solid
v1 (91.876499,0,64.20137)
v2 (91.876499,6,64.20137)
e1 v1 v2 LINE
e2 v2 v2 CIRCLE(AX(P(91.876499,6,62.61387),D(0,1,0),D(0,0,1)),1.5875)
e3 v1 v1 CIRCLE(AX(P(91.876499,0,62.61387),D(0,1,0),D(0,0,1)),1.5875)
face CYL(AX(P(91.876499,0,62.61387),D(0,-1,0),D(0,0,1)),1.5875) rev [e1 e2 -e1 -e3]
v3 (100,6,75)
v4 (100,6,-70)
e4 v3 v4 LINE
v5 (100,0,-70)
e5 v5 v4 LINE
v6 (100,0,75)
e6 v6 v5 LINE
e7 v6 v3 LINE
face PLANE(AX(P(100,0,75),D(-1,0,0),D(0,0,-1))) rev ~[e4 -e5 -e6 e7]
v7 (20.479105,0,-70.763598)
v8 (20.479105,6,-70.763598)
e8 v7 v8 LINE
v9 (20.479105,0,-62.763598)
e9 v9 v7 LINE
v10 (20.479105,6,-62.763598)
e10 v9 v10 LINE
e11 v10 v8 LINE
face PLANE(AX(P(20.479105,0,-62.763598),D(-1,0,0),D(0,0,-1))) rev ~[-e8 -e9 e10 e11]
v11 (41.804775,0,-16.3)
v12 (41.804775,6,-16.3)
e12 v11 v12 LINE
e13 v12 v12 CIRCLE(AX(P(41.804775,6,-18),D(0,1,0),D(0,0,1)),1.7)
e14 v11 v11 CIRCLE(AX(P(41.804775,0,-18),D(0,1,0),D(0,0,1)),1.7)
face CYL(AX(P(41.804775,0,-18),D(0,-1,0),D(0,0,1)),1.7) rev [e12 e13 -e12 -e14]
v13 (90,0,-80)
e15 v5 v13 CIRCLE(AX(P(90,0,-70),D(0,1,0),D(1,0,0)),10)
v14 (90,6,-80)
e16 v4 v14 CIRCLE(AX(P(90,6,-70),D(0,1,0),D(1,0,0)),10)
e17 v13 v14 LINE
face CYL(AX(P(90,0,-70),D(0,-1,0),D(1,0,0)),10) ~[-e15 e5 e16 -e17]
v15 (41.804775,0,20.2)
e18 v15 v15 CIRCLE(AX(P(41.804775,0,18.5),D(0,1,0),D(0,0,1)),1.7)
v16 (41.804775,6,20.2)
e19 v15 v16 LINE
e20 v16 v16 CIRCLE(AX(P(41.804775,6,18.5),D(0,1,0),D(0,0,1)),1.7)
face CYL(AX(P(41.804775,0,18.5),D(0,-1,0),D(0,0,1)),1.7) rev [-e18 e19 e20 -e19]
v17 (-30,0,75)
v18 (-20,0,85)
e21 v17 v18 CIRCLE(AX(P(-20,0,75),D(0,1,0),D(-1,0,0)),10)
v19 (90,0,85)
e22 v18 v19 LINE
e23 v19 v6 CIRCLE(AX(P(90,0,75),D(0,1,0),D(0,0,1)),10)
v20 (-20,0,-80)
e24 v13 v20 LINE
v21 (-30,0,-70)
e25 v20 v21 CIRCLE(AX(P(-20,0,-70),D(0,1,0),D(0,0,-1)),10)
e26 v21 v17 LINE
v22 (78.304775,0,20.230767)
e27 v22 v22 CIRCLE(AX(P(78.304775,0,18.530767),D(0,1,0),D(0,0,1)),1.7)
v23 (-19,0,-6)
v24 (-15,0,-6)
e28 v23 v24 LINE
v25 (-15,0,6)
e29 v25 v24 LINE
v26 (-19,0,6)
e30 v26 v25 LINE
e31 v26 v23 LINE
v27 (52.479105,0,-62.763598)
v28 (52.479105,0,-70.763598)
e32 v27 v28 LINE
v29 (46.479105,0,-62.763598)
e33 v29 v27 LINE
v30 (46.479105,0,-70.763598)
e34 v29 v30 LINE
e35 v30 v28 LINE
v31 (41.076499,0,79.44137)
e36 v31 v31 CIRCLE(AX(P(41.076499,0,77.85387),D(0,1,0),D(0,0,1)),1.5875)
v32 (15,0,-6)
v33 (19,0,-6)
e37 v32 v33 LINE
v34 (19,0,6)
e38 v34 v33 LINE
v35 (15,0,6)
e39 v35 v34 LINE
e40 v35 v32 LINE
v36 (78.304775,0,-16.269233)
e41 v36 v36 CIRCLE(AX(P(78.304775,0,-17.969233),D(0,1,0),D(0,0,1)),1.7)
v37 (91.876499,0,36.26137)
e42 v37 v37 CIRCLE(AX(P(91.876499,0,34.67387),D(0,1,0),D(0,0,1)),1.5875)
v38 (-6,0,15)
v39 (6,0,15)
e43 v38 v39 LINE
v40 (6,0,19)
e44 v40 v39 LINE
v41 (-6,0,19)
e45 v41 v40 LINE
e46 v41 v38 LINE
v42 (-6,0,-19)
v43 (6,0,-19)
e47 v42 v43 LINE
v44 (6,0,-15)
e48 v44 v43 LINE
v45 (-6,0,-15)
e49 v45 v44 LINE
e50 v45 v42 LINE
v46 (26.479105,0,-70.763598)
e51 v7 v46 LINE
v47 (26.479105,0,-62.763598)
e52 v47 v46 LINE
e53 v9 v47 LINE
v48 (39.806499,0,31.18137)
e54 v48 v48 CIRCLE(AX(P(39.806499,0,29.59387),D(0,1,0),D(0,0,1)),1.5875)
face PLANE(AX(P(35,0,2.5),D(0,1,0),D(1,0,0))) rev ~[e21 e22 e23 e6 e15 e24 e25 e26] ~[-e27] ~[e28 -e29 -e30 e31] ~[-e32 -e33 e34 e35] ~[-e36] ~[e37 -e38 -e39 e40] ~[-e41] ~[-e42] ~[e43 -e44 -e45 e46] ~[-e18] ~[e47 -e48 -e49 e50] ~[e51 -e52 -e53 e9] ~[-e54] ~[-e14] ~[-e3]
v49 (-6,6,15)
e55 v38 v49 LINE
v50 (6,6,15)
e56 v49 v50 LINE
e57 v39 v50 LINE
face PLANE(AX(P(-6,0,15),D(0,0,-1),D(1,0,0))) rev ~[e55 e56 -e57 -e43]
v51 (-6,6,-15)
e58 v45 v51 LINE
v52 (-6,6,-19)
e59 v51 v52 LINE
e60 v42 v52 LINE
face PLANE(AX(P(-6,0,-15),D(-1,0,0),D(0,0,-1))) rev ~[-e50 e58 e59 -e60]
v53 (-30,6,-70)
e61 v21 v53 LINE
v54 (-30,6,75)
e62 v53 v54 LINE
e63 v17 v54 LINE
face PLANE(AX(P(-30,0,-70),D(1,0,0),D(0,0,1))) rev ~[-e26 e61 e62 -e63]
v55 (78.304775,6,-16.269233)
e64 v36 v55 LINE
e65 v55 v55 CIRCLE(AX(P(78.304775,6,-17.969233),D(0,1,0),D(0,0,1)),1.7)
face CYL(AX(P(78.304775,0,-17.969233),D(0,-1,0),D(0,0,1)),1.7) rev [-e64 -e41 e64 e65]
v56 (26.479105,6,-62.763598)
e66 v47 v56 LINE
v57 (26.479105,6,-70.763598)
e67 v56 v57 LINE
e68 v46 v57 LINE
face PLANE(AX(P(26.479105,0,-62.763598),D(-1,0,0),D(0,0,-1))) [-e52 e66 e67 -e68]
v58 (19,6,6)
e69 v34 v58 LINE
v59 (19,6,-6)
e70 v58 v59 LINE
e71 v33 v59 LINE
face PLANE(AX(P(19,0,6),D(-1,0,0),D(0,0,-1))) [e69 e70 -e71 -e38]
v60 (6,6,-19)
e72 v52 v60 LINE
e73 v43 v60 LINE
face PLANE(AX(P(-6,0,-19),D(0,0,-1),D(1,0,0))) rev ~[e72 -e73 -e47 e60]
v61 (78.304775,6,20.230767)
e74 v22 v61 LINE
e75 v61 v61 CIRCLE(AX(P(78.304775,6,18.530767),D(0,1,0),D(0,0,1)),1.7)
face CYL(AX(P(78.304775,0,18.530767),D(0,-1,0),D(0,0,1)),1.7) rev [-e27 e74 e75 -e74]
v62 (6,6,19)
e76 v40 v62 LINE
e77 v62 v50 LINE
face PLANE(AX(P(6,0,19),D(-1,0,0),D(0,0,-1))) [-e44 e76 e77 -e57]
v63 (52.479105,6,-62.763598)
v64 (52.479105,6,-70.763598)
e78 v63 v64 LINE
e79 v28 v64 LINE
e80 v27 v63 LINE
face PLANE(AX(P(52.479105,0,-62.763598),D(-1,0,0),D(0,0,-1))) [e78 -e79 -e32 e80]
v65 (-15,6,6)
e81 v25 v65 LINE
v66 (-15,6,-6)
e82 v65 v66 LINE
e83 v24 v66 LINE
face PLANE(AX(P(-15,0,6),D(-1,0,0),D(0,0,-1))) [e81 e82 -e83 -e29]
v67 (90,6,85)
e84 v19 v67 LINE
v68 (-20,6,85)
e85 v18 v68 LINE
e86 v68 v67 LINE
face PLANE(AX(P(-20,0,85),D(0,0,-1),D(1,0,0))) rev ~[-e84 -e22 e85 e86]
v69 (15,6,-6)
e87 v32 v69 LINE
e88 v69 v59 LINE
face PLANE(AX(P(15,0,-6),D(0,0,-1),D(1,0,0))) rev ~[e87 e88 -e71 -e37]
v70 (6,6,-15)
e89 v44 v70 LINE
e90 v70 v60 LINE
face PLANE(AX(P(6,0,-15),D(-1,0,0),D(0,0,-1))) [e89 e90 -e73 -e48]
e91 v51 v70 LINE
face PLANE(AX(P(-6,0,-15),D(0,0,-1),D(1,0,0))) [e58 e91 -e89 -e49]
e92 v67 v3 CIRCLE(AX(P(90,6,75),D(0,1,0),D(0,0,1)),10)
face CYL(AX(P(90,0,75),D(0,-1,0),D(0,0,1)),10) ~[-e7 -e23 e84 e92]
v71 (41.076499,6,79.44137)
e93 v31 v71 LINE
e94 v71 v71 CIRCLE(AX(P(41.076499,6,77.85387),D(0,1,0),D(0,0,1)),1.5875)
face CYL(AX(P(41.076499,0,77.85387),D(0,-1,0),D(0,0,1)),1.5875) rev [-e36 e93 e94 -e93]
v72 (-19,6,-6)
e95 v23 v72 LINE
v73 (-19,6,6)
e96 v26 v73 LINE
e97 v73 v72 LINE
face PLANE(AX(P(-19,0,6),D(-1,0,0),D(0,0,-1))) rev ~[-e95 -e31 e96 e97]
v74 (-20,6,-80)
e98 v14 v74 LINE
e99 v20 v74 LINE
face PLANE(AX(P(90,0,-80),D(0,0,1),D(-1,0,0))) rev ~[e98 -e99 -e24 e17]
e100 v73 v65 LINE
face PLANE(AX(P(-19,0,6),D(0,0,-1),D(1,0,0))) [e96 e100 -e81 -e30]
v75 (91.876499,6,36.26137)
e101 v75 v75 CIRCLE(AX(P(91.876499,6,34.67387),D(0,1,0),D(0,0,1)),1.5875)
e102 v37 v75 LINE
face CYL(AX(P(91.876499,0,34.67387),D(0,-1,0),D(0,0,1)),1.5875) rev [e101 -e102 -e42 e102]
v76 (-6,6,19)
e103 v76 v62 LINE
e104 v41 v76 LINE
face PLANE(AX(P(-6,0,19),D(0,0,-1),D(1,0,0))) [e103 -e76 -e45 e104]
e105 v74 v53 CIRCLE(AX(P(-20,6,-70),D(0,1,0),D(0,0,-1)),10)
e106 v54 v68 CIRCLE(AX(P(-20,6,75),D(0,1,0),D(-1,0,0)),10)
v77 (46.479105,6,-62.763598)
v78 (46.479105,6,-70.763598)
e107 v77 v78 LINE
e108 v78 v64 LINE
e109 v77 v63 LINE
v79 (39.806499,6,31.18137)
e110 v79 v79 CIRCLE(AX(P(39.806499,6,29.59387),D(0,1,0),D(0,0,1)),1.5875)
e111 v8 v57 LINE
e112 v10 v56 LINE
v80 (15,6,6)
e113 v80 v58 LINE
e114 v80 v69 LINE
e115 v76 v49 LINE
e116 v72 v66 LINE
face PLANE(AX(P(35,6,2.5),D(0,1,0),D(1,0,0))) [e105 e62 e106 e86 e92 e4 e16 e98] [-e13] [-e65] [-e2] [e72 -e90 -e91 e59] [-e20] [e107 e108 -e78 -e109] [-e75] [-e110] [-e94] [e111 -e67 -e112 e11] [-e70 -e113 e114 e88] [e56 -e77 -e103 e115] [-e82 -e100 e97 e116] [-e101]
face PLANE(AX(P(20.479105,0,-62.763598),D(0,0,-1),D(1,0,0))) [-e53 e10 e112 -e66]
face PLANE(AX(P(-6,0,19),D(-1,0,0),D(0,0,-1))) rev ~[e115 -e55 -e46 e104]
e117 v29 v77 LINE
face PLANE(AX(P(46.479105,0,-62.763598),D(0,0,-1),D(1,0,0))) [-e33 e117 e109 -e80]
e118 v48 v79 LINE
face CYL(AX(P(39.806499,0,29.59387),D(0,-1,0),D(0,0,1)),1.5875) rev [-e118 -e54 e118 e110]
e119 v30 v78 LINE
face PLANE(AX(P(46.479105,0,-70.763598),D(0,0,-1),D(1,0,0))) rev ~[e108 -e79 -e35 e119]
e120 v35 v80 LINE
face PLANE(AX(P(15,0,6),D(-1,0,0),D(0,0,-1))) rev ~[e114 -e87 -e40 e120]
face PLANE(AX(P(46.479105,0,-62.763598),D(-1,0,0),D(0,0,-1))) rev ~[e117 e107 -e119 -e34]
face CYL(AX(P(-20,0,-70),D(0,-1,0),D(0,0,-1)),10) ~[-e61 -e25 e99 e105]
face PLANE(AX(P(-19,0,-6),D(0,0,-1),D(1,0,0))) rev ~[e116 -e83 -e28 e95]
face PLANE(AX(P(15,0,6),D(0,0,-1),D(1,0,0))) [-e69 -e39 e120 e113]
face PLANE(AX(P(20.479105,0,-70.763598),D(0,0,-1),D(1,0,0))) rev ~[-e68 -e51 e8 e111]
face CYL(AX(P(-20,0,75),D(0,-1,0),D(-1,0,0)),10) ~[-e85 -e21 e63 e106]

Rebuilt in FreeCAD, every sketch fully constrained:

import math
import FreeCAD as App
import Part
import Sketcher

V = App.Vector


def add_polygon(sketch, points):
    """Adds a closed chain of lines whose ends are joined by coincident constraints."""
    first, n = sketch.GeometryCount, len(points)
    for a, b in zip(points, points[1:] + points[:1]):
        sketch.addGeometry(Part.LineSegment(App.Vector(*a, 0), App.Vector(*b, 0)), False)
    for i in range(n):
        sketch.addConstraint(Sketcher.Constraint("Coincident", first + i, 2, first + (i + 1) % n, 1))

doc = App.newDocument("Part")
body = doc.addObject("PartDesign::Body", "Body")

sketch1 = body.newObject("Sketcher::SketchObject", "Sketch")
sketch1.AttachmentSupport = (doc.getObject("XZ_Plane"), [""])
sketch1.MapMode = "FlatFace"
sketch1.addGeometry(Part.LineSegment(V(90, -80, 0), V(-20, -80, 0)), False)
sketch1.addGeometry(Part.ArcOfCircle(Part.Circle(V(-20, -70, 0), V(0, 0, 1), 10), math.radians(180), math.radians(270)), False)
sketch1.addGeometry(Part.LineSegment(V(-30, -70, 0), V(-30, 75, 0)), False)
sketch1.addGeometry(Part.ArcOfCircle(Part.Circle(V(-20, 75, 0), V(0, 0, 1), 10), math.radians(90), math.radians(180)), False)
sketch1.addGeometry(Part.LineSegment(V(-20, 85, 0), V(90, 85, 0)), False)
sketch1.addGeometry(Part.ArcOfCircle(Part.Circle(V(90, 75, 0), V(0, 0, 1), 10), math.radians(0), math.radians(90)), False)
sketch1.addGeometry(Part.LineSegment(V(100, 75, 0), V(100, -70, 0)), False)
sketch1.addGeometry(Part.ArcOfCircle(Part.Circle(V(90, -70, 0), V(0, 0, 1), 10), math.radians(-90), math.radians(0)), False)
add_polygon(sketch1, [(6, 19), (-6, 19), (-6, 15), (6, 15)])
sketch1.addGeometry(Part.Circle(V(41.1, 77.9, 0), V(0, 0, 1), 1.6), False)
sketch1.addGeometry(Part.Circle(V(91.9, 62.6, 0), V(0, 0, 1), 1.6), False)
sketch1.addGeometry(Part.Circle(V(39.8, 29.6, 0), V(0, 0, 1), 1.6), False)
sketch1.addGeometry(Part.Circle(V(41.8, 18.5, 0), V(0, 0, 1), 1.7), False)
sketch1.addGeometry(Part.Circle(V(91.9, 34.7, 0), V(0, 0, 1), 1.6), False)
sketch1.addGeometry(Part.Circle(V(78.3, 18.5, 0), V(0, 0, 1), 1.7), False)
add_polygon(sketch1, [(-15, 6), (-19, 6), (-19, -6), (-15, -6)])
add_polygon(sketch1, [(6, -15), (-6, -15), (-6, -19), (6, -19)])
add_polygon(sketch1, [(19, 6), (15, 6), (15, -6), (19, -6)])
add_polygon(sketch1, [(26.5, -62.8), (20.5, -62.8), (20.5, -70.8), (26.5, -70.8)])
sketch1.addGeometry(Part.Circle(V(41.8, -18, 0), V(0, 0, 1), 1.7), False)
sketch1.addGeometry(Part.Circle(V(78.3, -18, 0), V(0, 0, 1), 1.7), False)
add_polygon(sketch1, [(52.5, -62.8), (46.5, -62.8), (46.5, -70.8), (52.5, -70.8)])
sketch1.addConstraint(Sketcher.Constraint("Tangent", 0, 2, 1, 2))
sketch1.addConstraint(Sketcher.Constraint("Tangent", 1, 1, 2, 1))
sketch1.addConstraint(Sketcher.Constraint("Tangent", 2, 2, 3, 2))
sketch1.addConstraint(Sketcher.Constraint("Tangent", 3, 1, 4, 1))
sketch1.addConstraint(Sketcher.Constraint("Tangent", 4, 2, 5, 2))
sketch1.addConstraint(Sketcher.Constraint("Tangent", 5, 1, 6, 1))
sketch1.addConstraint(Sketcher.Constraint("Tangent", 6, 2, 7, 2))
sketch1.addConstraint(Sketcher.Constraint("Tangent", 7, 1, 0, 1))
sketch1.addConstraint(Sketcher.Constraint("Horizontal", 0))
sketch1.addConstraint(Sketcher.Constraint("Vertical", 2))
sketch1.addConstraint(Sketcher.Constraint("Horizontal", 4))
sketch1.addConstraint(Sketcher.Constraint("Vertical", 6))
sketch1.addConstraint(Sketcher.Constraint("Horizontal", 8))
sketch1.addConstraint(Sketcher.Constraint("Vertical", 9))
sketch1.addConstraint(Sketcher.Constraint("Horizontal", 10))
sketch1.addConstraint(Sketcher.Constraint("Vertical", 11))
sketch1.addConstraint(Sketcher.Constraint("Horizontal", 18))
sketch1.addConstraint(Sketcher.Constraint("Vertical", 19))
sketch1.addConstraint(Sketcher.Constraint("Horizontal", 20))
sketch1.addConstraint(Sketcher.Constraint("Vertical", 21))
sketch1.addConstraint(Sketcher.Constraint("Horizontal", 22))
sketch1.addConstraint(Sketcher.Constraint("Vertical", 23))
sketch1.addConstraint(Sketcher.Constraint("Horizontal", 24))
sketch1.addConstraint(Sketcher.Constraint("Vertical", 25))
sketch1.addConstraint(Sketcher.Constraint("Horizontal", 26))
sketch1.addConstraint(Sketcher.Constraint("Vertical", 27))
sketch1.addConstraint(Sketcher.Constraint("Horizontal", 28))
sketch1.addConstraint(Sketcher.Constraint("Vertical", 29))
sketch1.addConstraint(Sketcher.Constraint("Horizontal", 30))
sketch1.addConstraint(Sketcher.Constraint("Vertical", 31))
sketch1.addConstraint(Sketcher.Constraint("Horizontal", 32))
sketch1.addConstraint(Sketcher.Constraint("Vertical", 33))
sketch1.addConstraint(Sketcher.Constraint("Horizontal", 36))
sketch1.addConstraint(Sketcher.Constraint("Vertical", 37))
sketch1.addConstraint(Sketcher.Constraint("Horizontal", 38))
sketch1.addConstraint(Sketcher.Constraint("Vertical", 39))
sketch1.addConstraint(Sketcher.Constraint("Equal", 1, 3))
sketch1.addConstraint(Sketcher.Constraint("Equal", 3, 5))
sketch1.addConstraint(Sketcher.Constraint("Equal", 5, 7))
sketch1.addConstraint(Sketcher.Constraint("Equal", 12, 13))
sketch1.addConstraint(Sketcher.Constraint("Equal", 13, 14))
sketch1.addConstraint(Sketcher.Constraint("Equal", 14, 16))
sketch1.addConstraint(Sketcher.Constraint("Equal", 15, 17))
sketch1.addConstraint(Sketcher.Constraint("Equal", 17, 34))
sketch1.addConstraint(Sketcher.Constraint("Equal", 34, 35))
sketch1.addConstraint(Sketcher.Constraint("Symmetric", 10, 2, 22, 2, -1, 1))
sketch1.addConstraint(Sketcher.Constraint("Symmetric", 8, 2, 24, 2, -1, 1))
sketch1.addConstraint(Sketcher.Constraint("Symmetric", 20, 2, 26, 2, -1, 1))
sketch1.addConstraint(Sketcher.Constraint("Symmetric", 18, 2, 28, 2, -1, 1))
sketch1.addConstraint(Sketcher.Constraint("Horizontal", 21, 2, 26, 2))
sketch1.addConstraint(Sketcher.Constraint("Horizontal", 33, 2, 36, 2))
sketch1.addConstraint(Sketcher.Constraint("Horizontal", 32, 2, 37, 2))
sketch1.addConstraint(Sketcher.Constraint("Vertical", 13, 3, 16, 3))
sketch1.addConstraint(Sketcher.Constraint("Vertical", 15, 3, 34, 3))
sketch1.addConstraint(Sketcher.Constraint("Vertical", 17, 3, 35, 3))
sketch1.addConstraint(Sketcher.Constraint("Vertical", 9, 2, 22, 2))
sketch1.addConstraint(Sketcher.Constraint("Equal", 32, 36))
sketch1.addConstraint(Sketcher.Constraint("Equal", 28, 9))
sketch1.addConstraint(Sketcher.Constraint("Equal", 24, 19))
sketch1.addConstraint(Sketcher.Constraint("Radius", 1, 10.0))
sketch1.addConstraint(Sketcher.Constraint("Diameter", 15, 3.4))
sketch1.addConstraint(Sketcher.Constraint("DistanceX", 0, 2, 0, 1, 110.0))
sketch1.addConstraint(Sketcher.Constraint("DistanceX", 8, 2, 8, 1, 12.0))
sketch1.addConstraint(Sketcher.Constraint("DistanceX", 18, 2, 18, 1, 4.0))
sketch1.addConstraint(Sketcher.Constraint("DistanceX", 30, 2, 30, 1, 6.0))
sketch1.addConstraint(Sketcher.Constraint("DistanceY", 2, 1, 2, 2, 145.0))
sketch1.addConstraint(Sketcher.Constraint("DistanceY", 31, 2, 31, 1, 8.0))
sketch1.addConstraint(Sketcher.Constraint("Diameter", 12, 3.175))
sketch1.addConstraint(Sketcher.Constraint("DistanceX", 1, 3, -1, 1, 20.0))
sketch1.addConstraint(Sketcher.Constraint("DistanceY", 1, 3, -1, 1, 70.0))
sketch1.addConstraint(Sketcher.Constraint("DistanceY", 34, 3, -1, 1, 18.0))
sketch1.addConstraint(Sketcher.Constraint("DistanceY", -1, 1, 8, 2, 19.0))
sketch1.addConstraint(Sketcher.Constraint("DistanceX", 18, 2, -1, 1, 19.0))
sketch1.addConstraint(Sketcher.Constraint("DistanceX", 33, 2, 36, 2, 20.0))
sketch1.addConstraint(Sketcher.Constraint("DistanceY", -1, 1, 15, 3, 18.5))
sketch1.addConstraint(Sketcher.Constraint("DistanceX", 12, 3, 13, 3, 50.8))
sketch1.addConstraint(Sketcher.Constraint("DistanceX", 15, 3, 17, 3, 36.5))
sketch1.addConstraint(Sketcher.Constraint("DistanceY", 35, 3, 17, 3, 36.5))
sketch1.addConstraint(Sketcher.Constraint("DistanceY", 13, 3, 12, 3, 15.24))
sketch1.addConstraint(Sketcher.Constraint("DistanceX", 14, 3, 12, 3, 1.27))
sketch1.addConstraint(Sketcher.Constraint("DistanceY", 14, 3, 12, 3, 48.26))
sketch1.addConstraint(Sketcher.Constraint("DistanceY", 16, 3, 13, 3, 27.94))
sketch1.addConstraint(Sketcher.Constraint("DistanceX", -1, 1, 12, 3, 41.076499))
sketch1.addConstraint(Sketcher.Constraint("DistanceY", 30, 2, -1, 1, 62.763598))
sketch1.addConstraint(Sketcher.Constraint("DistanceY", -1, 1, 12, 3, 77.85387))
sketch1.addConstraint(Sketcher.Constraint("DistanceX", 30, 2, 34, 3, 21.32567))
sketch1.addConstraint(Sketcher.Constraint("DistanceX", -1, 1, 15, 3, 41.804775))
sketch1.addConstraint(Sketcher.Constraint("DistanceY", -1, 1, 17, 3, 18.530767))
pad1 = body.newObject("PartDesign::Pad", "Pad")
pad1.Profile = sketch1
pad1.Length = 6
pad1.Reversed = True

doc.recompute()
